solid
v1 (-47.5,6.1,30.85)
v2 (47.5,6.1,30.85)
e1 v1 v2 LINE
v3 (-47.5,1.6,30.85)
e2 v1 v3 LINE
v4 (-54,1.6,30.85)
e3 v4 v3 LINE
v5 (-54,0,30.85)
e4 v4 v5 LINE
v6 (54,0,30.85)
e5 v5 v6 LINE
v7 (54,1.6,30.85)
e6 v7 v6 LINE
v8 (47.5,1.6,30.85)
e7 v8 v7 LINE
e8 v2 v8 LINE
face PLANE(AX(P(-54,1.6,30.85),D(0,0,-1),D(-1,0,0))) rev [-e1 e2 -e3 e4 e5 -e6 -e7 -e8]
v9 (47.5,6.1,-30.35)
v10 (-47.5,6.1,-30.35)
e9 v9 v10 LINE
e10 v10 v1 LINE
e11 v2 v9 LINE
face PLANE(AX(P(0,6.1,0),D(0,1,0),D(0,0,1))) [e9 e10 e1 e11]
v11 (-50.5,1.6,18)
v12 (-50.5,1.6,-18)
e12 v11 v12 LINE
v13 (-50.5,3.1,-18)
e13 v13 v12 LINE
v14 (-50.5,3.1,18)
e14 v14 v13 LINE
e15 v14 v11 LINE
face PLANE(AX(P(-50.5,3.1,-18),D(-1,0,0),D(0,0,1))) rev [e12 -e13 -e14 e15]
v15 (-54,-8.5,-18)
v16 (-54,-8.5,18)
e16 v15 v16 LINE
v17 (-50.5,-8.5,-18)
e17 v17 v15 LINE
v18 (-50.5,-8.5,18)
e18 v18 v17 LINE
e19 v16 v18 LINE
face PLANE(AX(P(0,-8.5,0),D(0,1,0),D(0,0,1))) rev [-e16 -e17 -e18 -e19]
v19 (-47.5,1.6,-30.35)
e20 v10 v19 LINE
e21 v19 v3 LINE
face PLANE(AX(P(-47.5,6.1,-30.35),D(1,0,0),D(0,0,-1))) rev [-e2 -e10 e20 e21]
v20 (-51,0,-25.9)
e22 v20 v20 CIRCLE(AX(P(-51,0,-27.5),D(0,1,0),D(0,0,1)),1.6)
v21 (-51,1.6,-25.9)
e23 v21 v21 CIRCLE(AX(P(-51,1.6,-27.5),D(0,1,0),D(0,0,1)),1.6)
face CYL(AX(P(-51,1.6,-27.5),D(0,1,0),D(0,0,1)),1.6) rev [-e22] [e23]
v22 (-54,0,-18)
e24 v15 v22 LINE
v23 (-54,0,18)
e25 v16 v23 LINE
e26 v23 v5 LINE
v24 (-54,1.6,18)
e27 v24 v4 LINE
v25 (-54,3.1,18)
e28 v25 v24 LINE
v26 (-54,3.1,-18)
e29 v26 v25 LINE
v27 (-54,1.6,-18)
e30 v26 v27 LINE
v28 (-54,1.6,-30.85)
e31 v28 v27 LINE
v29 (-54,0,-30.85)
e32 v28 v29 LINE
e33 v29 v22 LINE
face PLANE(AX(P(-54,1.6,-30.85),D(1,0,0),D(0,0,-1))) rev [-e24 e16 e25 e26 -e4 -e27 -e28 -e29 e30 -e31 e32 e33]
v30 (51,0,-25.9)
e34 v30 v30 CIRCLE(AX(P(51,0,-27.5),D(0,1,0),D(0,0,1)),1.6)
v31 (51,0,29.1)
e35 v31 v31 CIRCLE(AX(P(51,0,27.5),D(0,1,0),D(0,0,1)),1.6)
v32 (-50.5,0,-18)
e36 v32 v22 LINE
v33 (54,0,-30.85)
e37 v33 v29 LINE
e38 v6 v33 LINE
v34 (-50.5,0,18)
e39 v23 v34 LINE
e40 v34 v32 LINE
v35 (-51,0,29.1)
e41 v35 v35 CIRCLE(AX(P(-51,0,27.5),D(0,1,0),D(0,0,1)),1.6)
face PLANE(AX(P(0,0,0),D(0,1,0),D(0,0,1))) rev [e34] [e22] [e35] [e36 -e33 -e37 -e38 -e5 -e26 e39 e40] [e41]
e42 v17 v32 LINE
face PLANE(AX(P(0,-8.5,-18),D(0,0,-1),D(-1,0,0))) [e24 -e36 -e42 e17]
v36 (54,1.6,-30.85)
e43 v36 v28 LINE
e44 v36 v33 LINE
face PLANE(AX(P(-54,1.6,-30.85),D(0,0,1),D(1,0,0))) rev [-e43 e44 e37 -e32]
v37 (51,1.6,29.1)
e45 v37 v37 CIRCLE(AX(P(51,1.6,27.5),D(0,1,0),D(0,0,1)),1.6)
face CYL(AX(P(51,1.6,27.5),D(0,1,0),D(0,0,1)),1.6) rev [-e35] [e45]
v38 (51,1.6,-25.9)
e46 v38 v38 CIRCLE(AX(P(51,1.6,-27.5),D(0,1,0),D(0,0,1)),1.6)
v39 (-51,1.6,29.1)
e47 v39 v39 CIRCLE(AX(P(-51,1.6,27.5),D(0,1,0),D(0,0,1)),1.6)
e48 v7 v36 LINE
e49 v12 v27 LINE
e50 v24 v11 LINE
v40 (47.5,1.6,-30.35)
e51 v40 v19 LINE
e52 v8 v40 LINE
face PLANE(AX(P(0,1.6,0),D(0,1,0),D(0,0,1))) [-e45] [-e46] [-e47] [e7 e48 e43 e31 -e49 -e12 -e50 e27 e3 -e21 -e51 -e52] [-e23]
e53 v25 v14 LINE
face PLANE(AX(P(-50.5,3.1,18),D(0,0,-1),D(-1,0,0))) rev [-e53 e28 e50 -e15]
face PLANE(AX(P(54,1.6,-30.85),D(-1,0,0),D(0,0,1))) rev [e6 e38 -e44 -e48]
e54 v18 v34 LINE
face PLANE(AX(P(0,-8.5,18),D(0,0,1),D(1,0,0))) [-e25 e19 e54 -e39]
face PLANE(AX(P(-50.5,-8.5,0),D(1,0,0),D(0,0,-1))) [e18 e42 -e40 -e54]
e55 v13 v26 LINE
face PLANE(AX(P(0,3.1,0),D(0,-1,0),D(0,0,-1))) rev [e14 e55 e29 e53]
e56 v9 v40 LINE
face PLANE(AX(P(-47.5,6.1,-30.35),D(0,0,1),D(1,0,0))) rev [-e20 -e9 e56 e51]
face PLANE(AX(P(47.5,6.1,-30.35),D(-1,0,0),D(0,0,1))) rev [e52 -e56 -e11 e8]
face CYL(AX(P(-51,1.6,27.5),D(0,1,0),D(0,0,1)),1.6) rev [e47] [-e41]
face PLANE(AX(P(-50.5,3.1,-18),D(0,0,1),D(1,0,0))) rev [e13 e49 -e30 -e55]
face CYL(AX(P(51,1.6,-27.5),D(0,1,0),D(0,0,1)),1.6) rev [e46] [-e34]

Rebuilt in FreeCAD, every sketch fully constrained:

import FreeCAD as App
import Part
import Sketcher

V = App.Vector

doc = App.newDocument("Part")
params = doc.addObject("Spreadsheet::Sheet", "Params")
for row, (alias, value) in enumerate([
    ("sketch1_width", "108 mm"),
    ("sketch1_height", "61.7 mm"),
    ("pad1_length", "1.6 mm"),
    ("sketch2_width", "95 mm"),
    ("sketch2_height", "61.2 mm"),
    ("pad2_length", "4.5 mm"),
    ("sketch3_height", "36 mm"),
    ("sketch3_width", "3.5 mm"),
    ("pad3_length", "1.5 mm"),
    ("sketch4_height", "36 mm"),
    ("sketch4_width", "3.5 mm"),
    ("pad4_length", "8.5 mm"),
    ("sketch5_diameter", "3.2 mm"),
    ("hole_diameter", "3.2 mm"),
], start=1):
    params.set(f"A{row}", alias)
    params.set(f"B{row}", "=" + value)
    params.setAlias(f"B{row}", alias)

body = doc.addObject("PartDesign::Body", "Body")

# Sketch on XZ plane
sketch1 = body.newObject("Sketcher::SketchObject", "Sketch")
sketch1.AttachmentSupport = (doc.getObject("XZ_Plane"), [""])
sketch1.MapMode = "FlatFace"
sketch1.addGeometry(Part.LineSegment(V(-54, -31, 0), V(-54, 31, 0)), False)
sketch1.addGeometry(Part.LineSegment(V(-54, 31, 0), V(54, 31, 0)), False)
sketch1.addGeometry(Part.LineSegment(V(54, 31, 0), V(54, -31, 0)), False)
sketch1.addGeometry(Part.LineSegment(V(54, -31, 0), V(-54, -31, 0)), False)
sketch1.addConstraint(Sketcher.Constraint("Coincident", 0, 2, 1, 1))
sketch1.addConstraint(Sketcher.Constraint("Coincident", 1, 2, 2, 1))
sketch1.addConstraint(Sketcher.Constraint("Coincident", 2, 2, 3, 1))
sketch1.addConstraint(Sketcher.Constraint("Coincident", 3, 2, 0, 1))
sketch1.addConstraint(Sketcher.Constraint("Vertical", 0))
sketch1.addConstraint(Sketcher.Constraint("Horizontal", 1))
sketch1.addConstraint(Sketcher.Constraint("Vertical", 2))
sketch1.addConstraint(Sketcher.Constraint("Horizontal", 3))
sketch1.addConstraint(Sketcher.Constraint("Symmetric", 0, 2, 2, 2, -1, 1))
sketch1.addConstraint(Sketcher.Constraint("DistanceX", 1, 1, 1, 2, 108.0))
sketch1.addConstraint(Sketcher.Constraint("DistanceY", 0, 1, 0, 2, 61.7))
sketch1.setExpression("Constraints[9]", "Params.sketch1_width")
sketch1.setExpression("Constraints[10]", "Params.sketch1_height")
pad1 = body.newObject("PartDesign::Pad", "Pad")
pad1.Profile = sketch1
pad1.setExpression("Length", "Params.pad1_length")
pad1.Reversed = True

# Sketch on XZ plane
sketch2 = body.newObject("Sketcher::SketchObject", "Sketch001")
sketch2.AttachmentSupport = (doc.getObject("XZ_Plane"), [""])
sketch2.MapMode = "FlatFace"
sketch2.AttachmentOffset = App.Placement(V(0, 0, -1.6), App.Rotation())
sketch2.addGeometry(Part.LineSegment(V(-48, -30, 0), V(-48, 31, 0)), False)
sketch2.addGeometry(Part.LineSegment(V(-48, 31, 0), V(48, 31, 0)), False)
sketch2.addGeometry(Part.LineSegment(V(48, 31, 0), V(48, -30, 0)), False)
sketch2.addGeometry(Part.LineSegment(V(48, -30, 0), V(-48, -30, 0)), False)
sketch2.addConstraint(Sketcher.Constraint("Coincident", 0, 2, 1, 1))
sketch2.addConstraint(Sketcher.Constraint("Coincident", 1, 2, 2, 1))
sketch2.addConstraint(Sketcher.Constraint("Coincident", 2, 2, 3, 1))
sketch2.addConstraint(Sketcher.Constraint("Coincident", 3, 2, 0, 1))
sketch2.addConstraint(Sketcher.Constraint("Vertical", 0))
sketch2.addConstraint(Sketcher.Constraint("Horizontal", 1))
sketch2.addConstraint(Sketcher.Constraint("Vertical", 2))
sketch2.addConstraint(Sketcher.Constraint("Horizontal", 3))
sketch2.addConstraint(Sketcher.Constraint("DistanceX", 1, 1, 1, 2, 95.0))
sketch2.addConstraint(Sketcher.Constraint("DistanceY", 0, 1, 0, 2, 61.2))
sketch2.addConstraint(Sketcher.Constraint("DistanceX", 0, 2, -1, 1, 47.5))
sketch2.addConstraint(Sketcher.Constraint("DistanceY", -1, 1, 0, 2, 30.85))
sketch2.setExpression("Constraints[8]", "Params.sketch2_width")
sketch2.setExpression("Constraints[9]", "Params.sketch2_height")
pad2 = body.newObject("PartDesign::Pad", "Pad001")
pad2.Profile = sketch2
pad2.setExpression("Length", "Params.pad2_length")
pad2.Reversed = True

# Sketch on XZ plane
sketch3 = body.newObject("Sketcher::SketchObject", "Sketch002")
sketch3.AttachmentSupport = (doc.getObject("XZ_Plane"), [""])
sketch3.MapMode = "FlatFace"
sketch3.AttachmentOffset = App.Placement(V(0, 0, -1.6), App.Rotation())
sketch3.addGeometry(Part.LineSegment(V(-54, -18, 0), V(-54, 18, 0)), False)
sketch3.addGeometry(Part.LineSegment(V(-54, 18, 0), V(-50.5, 18, 0)), False)
sketch3.addGeometry(Part.LineSegment(V(-50.5, 18, 0), V(-50.5, -18, 0)), False)
sketch3.addGeometry(Part.LineSegment(V(-50.5, -18, 0), V(-54, -18, 0)), False)
sketch3.addConstraint(Sketcher.Constraint("Coincident", 0, 2, 1, 1))
sketch3.addConstraint(Sketcher.Constraint("Coincident", 1, 2, 2, 1))
sketch3.addConstraint(Sketcher.Constraint("Coincident", 2, 2, 3, 1))
sketch3.addConstraint(Sketcher.Constraint("Coincident", 3, 2, 0, 1))
sketch3.addConstraint(Sketcher.Constraint("Vertical", 0))
sketch3.addConstraint(Sketcher.Constraint("Horizontal", 1))
sketch3.addConstraint(Sketcher.Constraint("Vertical", 2))
sketch3.addConstraint(Sketcher.Constraint("Horizontal", 3))
sketch3.addConstraint(Sketcher.Constraint("DistanceY", 0, 1, 0, 2, 36.0))
sketch3.addConstraint(Sketcher.Constraint("DistanceX", 1, 1, 1, 2, 3.5))
sketch3.addConstraint(Sketcher.Constraint("DistanceX", 0, 2, -1, 1, 54.0))
sketch3.addConstraint(Sketcher.Constraint("DistanceY", -1, 1, 0, 2, 18.0))
sketch3.setExpression("Constraints[8]", "Params.sketch3_height")
sketch3.setExpression("Constraints[9]", "Params.sketch3_width")
pad3 = body.newObject("PartDesign::Pad", "Pad002")
pad3.Profile = sketch3
pad3.setExpression("Length", "Params.pad3_length")
pad3.Reversed = True

# Sketch on XZ plane
sketch4 = body.newObject("Sketcher::SketchObject", "Sketch003")
sketch4.AttachmentSupport = (doc.getObject("XZ_Plane"), [""])
sketch4.MapMode = "FlatFace"
sketch4.addGeometry(Part.LineSegment(V(-54, -18, 0), V(-54, 18, 0)), False)
sketch4.addGeometry(Part.LineSegment(V(-54, 18, 0), V(-50.5, 18, 0)), False)
sketch4.addGeometry(Part.LineSegment(V(-50.5, 18, 0), V(-50.5, -18, 0)), False)
sketch4.addGeometry(Part.LineSegment(V(-50.5, -18, 0), V(-54, -18, 0)), False)
sketch4.addConstraint(Sketcher.Constraint("Coincident", 0, 2, 1, 1))
sketch4.addConstraint(Sketcher.Constraint("Coincident", 1, 2, 2, 1))
sketch4.addConstraint(Sketcher.Constraint("Coincident", 2, 2, 3, 1))
sketch4.addConstraint(Sketcher.Constraint("Coincident", 3, 2, 0, 1))
sketch4.addConstraint(Sketcher.Constraint("Vertical", 0))
sketch4.addConstraint(Sketcher.Constraint("Horizontal", 1))
sketch4.addConstraint(Sketcher.Constraint("Vertical", 2))
sketch4.addConstraint(Sketcher.Constraint("Horizontal", 3))
sketch4.addConstraint(Sketcher.Constraint("DistanceY", 0, 1, 0, 2, 36.0))
sketch4.addConstraint(Sketcher.Constraint("DistanceX", 1, 1, 1, 2, 3.5))
sketch4.addConstraint(Sketcher.Constraint("DistanceX", 0, 2, -1, 1, 54.0))
sketch4.addConstraint(Sketcher.Constraint("DistanceY", -1, 1, 0, 2, 18.0))
sketch4.setExpression("Constraints[8]", "Params.sketch4_height")
sketch4.setExpression("Constraints[9]", "Params.sketch4_width")
pad4 = body.newObject("PartDesign::Pad", "Pad003")
pad4.Profile = sketch4
pad4.setExpression("Length", "Params.pad4_length")

# Sketch on XZ plane
sketch5 = body.newObject("Sketcher::SketchObject", "Sketch004")
sketch5.AttachmentSupport = (doc.getObject("XZ_Plane"), [""])
sketch5.MapMode = "FlatFace"
sketch5.AttachmentOffset = App.Placement(V(0, 0, -1.6), App.Rotation())
sketch5.addGeometry(Part.Circle(V(-51, -27.5, 0), V(0, 0, 1), 1.6), False)
sketch5.addGeometry(Part.Circle(V(-51, 27.5, 0), V(0, 0, 1), 1.6), False)
sketch5.addGeometry(Part.Circle(V(51, -27.5, 0), V(0, 0, 1), 1.6), False)
sketch5.addGeometry(Part.Circle(V(51, 27.5, 0), V(0, 0, 1), 1.6), False)
sketch5.addConstraint(Sketcher.Constraint("Equal", 0, 1))
sketch5.addConstraint(Sketcher.Constraint("Equal", 1, 2))
sketch5.addConstraint(Sketcher.Constraint("Equal", 2, 3))
sketch5.addConstraint(Sketcher.Constraint("Symmetric", 1, 3, 2, 3, -1, 1))
sketch5.addConstraint(Sketcher.Constraint("Symmetric", 0, 3, 3, 3, -1, 1))
sketch5.addConstraint(Sketcher.Constraint("Symmetric", 0, 3, 2, 3, -2))
sketch5.addConstraint(Sketcher.Constraint("Diameter", 0, 3.2))
sketch5.addConstraint(Sketcher.Constraint("DistanceX", 0, 3, -1, 1, 51.0))
sketch5.addConstraint(Sketcher.Constraint("DistanceY", 0, 3, 1, 3, 55.0))
sketch5.setExpression("Constraints[6]", "Params.sketch5_diameter")
doc.recompute()
hole = body.newObject("PartDesign::Hole", "Hole")
hole.Profile = sketch5
hole.ThreadType = "None"
hole.setExpression("Diameter", "Params.hole_diameter")
hole.DepthType = "ThroughAll"
hole.Reversed = True

doc.recompute()
